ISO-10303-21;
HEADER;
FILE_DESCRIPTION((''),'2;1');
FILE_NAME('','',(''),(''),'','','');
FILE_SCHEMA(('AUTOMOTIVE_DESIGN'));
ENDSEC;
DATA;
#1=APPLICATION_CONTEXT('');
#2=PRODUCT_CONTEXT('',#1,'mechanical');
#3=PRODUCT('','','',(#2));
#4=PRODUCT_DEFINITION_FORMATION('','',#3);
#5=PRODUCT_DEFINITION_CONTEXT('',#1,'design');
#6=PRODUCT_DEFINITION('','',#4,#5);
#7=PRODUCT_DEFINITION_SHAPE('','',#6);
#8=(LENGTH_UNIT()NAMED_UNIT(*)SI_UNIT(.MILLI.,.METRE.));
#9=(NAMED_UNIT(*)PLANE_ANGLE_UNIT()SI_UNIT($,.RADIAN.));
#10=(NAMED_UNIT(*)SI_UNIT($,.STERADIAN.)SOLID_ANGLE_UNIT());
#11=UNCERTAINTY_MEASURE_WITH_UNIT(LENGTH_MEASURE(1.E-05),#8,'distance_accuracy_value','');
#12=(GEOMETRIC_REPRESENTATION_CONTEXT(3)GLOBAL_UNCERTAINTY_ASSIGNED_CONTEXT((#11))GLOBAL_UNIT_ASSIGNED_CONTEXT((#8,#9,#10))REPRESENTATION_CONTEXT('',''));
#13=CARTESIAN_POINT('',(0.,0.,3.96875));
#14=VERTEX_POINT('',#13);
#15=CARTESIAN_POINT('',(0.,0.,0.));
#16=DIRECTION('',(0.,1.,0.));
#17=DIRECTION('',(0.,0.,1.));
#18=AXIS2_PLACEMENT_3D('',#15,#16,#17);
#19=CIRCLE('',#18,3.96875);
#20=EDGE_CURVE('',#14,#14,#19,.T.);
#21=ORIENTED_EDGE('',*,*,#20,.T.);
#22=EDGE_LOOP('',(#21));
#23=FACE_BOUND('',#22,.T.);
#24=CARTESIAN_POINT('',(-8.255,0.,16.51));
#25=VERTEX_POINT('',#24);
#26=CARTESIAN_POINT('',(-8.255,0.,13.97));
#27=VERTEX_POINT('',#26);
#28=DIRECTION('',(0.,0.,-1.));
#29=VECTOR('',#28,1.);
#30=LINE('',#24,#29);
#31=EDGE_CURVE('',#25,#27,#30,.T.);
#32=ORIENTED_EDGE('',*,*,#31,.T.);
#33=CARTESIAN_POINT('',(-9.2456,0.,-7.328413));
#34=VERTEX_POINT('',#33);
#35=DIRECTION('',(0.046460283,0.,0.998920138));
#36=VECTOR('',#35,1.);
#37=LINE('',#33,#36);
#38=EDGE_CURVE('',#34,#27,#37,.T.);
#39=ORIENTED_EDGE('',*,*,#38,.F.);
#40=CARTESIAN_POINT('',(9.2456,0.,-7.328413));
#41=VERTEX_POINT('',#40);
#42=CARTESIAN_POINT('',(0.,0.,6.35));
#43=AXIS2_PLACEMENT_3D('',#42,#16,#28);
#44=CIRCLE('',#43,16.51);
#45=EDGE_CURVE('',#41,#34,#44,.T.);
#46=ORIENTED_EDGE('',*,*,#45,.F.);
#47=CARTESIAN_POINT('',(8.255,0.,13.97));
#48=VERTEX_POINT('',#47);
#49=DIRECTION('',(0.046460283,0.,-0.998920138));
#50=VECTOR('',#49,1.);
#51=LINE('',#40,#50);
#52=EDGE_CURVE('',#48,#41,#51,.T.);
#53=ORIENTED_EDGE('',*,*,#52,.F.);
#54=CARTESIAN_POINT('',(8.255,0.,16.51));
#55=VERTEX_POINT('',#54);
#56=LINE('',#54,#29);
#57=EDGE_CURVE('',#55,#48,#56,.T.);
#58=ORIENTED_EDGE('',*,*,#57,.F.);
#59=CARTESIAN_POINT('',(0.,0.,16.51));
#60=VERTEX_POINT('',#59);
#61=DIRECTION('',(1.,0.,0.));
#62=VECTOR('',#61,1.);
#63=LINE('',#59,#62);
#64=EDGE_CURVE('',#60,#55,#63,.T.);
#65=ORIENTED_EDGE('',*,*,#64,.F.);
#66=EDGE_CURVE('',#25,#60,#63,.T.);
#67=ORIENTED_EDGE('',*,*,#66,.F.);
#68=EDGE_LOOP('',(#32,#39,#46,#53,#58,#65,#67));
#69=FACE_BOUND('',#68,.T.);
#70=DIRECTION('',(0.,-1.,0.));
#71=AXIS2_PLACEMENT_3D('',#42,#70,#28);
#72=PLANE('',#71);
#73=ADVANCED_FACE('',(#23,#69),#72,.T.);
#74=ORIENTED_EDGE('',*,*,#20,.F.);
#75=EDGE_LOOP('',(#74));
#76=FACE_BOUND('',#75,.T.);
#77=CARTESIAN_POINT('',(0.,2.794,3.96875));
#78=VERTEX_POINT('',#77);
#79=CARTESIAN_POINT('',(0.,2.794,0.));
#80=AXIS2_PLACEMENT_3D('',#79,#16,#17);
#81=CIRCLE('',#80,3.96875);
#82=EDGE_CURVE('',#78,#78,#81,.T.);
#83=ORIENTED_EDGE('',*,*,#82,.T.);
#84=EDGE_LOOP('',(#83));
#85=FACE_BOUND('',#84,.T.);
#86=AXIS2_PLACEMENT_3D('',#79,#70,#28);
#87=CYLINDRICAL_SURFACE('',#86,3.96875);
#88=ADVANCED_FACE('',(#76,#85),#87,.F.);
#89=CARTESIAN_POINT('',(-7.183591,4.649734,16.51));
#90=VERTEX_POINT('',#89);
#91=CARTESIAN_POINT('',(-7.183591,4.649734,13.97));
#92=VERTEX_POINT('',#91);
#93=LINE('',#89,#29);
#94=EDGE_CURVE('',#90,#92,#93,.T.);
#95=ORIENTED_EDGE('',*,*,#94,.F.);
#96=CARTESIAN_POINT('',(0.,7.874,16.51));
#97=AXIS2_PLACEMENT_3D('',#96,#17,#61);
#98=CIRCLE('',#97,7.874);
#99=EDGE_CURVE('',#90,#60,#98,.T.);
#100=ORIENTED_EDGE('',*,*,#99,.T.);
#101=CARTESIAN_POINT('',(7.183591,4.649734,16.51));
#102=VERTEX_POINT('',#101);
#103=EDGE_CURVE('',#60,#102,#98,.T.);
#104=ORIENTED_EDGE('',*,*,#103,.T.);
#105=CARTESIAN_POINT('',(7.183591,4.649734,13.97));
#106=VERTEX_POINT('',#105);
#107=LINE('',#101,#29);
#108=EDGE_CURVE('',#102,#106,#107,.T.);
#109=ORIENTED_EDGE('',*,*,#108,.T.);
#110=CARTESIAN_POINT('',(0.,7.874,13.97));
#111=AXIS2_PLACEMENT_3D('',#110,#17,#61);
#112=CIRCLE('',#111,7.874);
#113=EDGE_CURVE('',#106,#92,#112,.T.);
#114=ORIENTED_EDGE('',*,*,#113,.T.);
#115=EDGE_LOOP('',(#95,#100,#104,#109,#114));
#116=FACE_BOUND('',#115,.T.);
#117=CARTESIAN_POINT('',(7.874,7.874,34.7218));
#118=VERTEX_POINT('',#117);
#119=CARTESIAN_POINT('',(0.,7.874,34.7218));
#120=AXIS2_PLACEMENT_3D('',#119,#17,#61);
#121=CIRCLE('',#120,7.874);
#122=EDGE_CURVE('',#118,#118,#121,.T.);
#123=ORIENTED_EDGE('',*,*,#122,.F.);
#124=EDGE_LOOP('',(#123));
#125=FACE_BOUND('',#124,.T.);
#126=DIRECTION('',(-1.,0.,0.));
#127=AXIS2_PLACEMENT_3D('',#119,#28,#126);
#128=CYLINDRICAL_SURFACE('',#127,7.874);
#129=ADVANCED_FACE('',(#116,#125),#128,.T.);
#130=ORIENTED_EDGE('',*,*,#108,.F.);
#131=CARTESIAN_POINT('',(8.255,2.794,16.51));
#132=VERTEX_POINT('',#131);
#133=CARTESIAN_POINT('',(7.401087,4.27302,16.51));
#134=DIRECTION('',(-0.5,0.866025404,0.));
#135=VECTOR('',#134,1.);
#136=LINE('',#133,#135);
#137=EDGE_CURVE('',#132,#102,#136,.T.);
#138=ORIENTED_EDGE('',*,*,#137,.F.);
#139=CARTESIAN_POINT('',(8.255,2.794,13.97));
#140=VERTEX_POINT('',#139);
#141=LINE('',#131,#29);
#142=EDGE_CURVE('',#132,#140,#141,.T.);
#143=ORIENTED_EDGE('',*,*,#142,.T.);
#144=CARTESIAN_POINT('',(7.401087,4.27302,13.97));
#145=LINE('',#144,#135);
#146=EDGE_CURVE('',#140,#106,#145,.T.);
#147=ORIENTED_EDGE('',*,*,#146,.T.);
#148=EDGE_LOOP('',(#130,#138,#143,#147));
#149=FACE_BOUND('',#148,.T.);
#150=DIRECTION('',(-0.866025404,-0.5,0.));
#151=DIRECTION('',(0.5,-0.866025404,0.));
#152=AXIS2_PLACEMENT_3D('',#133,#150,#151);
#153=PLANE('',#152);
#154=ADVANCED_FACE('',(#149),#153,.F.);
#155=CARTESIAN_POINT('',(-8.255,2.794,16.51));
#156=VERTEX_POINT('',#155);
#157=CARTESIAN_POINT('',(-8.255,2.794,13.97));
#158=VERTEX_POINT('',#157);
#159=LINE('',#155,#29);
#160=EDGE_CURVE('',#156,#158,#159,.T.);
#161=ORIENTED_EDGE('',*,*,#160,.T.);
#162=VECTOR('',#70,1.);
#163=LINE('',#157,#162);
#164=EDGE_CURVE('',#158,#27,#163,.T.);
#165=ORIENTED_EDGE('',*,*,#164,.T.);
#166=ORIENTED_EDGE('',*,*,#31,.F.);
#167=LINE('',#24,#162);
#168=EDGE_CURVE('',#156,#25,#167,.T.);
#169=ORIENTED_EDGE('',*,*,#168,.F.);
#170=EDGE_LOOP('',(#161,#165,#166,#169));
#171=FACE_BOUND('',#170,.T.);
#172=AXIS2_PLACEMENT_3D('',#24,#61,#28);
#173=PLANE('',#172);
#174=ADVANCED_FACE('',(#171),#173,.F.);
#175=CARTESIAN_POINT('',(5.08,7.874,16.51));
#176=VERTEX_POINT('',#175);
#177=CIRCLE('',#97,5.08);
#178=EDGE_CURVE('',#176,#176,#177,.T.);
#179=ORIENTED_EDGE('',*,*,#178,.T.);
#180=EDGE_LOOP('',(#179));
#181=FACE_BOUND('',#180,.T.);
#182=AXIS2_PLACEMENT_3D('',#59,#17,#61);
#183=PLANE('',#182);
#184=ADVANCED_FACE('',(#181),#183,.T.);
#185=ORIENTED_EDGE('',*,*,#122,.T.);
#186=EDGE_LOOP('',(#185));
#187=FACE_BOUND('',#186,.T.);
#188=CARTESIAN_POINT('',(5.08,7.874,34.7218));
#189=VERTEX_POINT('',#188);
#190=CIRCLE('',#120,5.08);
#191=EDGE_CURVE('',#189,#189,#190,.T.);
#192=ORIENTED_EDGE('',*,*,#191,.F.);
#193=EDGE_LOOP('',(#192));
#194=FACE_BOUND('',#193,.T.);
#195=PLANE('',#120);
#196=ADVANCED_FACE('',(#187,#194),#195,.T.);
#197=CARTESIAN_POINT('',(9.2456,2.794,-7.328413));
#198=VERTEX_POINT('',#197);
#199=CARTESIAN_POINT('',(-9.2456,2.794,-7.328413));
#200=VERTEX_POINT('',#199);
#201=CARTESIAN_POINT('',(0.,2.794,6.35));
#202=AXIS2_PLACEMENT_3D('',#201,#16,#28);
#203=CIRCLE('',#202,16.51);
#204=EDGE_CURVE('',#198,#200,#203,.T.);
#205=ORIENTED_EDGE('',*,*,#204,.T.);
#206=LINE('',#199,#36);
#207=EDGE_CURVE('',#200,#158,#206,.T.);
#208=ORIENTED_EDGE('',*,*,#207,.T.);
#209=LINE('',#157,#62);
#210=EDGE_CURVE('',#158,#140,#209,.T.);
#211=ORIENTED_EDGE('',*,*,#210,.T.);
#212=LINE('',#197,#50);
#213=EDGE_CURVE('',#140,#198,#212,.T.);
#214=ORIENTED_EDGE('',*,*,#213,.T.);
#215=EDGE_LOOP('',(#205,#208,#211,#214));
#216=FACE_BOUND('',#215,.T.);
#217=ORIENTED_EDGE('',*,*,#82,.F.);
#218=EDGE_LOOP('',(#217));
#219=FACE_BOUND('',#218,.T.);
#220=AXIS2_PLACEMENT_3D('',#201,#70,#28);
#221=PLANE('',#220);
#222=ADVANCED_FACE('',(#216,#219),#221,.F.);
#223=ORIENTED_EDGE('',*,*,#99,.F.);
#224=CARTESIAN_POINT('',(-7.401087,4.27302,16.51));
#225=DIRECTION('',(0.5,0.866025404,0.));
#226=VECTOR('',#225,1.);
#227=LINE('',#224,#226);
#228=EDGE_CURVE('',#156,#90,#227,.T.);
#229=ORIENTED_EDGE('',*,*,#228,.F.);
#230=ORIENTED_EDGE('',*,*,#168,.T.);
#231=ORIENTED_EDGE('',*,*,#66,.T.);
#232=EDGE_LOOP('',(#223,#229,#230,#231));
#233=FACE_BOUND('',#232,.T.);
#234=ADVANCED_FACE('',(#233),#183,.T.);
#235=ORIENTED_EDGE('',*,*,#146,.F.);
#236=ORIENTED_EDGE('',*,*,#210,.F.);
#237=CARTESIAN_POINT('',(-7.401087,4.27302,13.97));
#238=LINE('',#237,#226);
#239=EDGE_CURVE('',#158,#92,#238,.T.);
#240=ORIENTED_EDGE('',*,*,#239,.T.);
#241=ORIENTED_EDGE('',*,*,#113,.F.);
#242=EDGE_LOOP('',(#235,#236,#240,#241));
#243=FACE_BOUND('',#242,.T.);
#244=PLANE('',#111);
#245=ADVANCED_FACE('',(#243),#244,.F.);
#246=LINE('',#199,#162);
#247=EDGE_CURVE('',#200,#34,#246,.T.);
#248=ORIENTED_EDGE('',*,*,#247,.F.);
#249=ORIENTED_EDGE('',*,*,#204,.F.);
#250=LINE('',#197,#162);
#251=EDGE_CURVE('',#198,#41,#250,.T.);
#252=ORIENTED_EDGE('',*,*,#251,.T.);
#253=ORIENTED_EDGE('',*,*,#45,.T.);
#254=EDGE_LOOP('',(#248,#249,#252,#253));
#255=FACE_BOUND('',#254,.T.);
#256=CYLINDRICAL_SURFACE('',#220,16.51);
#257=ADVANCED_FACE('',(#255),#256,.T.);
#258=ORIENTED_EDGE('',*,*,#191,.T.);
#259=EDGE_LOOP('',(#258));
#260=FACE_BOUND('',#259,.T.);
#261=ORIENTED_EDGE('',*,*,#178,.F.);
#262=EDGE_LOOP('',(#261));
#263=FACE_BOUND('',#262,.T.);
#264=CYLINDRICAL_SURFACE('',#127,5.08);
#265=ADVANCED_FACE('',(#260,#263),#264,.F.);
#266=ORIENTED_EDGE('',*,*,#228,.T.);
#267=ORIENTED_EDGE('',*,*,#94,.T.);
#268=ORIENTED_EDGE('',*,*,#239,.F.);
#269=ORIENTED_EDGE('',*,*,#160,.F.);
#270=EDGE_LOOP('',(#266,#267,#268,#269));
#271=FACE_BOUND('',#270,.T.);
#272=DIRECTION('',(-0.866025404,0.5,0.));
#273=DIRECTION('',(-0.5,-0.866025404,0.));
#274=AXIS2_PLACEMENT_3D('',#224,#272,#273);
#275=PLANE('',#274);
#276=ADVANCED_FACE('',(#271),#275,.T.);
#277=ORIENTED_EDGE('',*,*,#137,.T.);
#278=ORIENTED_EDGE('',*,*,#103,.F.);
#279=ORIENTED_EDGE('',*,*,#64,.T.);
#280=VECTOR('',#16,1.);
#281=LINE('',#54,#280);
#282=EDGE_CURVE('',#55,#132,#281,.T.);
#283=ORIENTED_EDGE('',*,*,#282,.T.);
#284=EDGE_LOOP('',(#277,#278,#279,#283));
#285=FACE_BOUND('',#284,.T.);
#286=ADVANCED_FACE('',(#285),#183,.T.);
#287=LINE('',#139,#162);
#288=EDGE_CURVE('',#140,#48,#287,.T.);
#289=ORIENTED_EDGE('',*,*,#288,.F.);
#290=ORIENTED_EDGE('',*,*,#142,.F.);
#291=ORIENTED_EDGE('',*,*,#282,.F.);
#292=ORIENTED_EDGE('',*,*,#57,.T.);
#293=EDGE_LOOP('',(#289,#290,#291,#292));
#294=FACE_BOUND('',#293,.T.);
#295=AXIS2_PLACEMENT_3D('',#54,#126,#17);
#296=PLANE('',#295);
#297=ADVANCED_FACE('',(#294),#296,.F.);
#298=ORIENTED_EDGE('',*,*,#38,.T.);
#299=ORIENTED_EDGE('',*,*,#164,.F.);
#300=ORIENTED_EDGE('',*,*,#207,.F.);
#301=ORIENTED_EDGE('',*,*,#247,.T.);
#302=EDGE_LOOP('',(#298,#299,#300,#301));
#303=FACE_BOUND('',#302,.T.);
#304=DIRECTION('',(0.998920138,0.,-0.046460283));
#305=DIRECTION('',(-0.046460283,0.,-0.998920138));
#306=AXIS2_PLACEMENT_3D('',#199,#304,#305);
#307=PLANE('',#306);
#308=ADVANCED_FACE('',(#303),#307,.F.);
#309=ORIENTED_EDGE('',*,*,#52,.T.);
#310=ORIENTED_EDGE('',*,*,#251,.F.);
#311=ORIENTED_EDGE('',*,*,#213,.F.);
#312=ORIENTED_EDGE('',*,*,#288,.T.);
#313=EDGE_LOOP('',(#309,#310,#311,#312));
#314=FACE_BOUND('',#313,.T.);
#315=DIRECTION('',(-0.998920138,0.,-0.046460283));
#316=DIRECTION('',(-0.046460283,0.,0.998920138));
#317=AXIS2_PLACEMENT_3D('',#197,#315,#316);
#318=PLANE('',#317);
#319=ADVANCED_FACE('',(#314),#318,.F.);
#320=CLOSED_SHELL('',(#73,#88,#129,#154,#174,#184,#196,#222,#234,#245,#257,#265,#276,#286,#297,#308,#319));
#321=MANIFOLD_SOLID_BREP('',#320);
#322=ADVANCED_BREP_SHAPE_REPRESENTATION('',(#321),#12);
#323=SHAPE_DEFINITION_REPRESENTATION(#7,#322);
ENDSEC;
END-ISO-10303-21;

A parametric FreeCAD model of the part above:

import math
import FreeCAD as App
import Part
import Sketcher
from FreeCAD import Vector
Q = App.Units.Quantity

doc = App.newDocument("Part")
params = doc.addObject("Spreadsheet::Sheet", "Params")
for row, (alias, value) in enumerate([
    ("sketch1_radius", "0.65 in"),
    ("sketch1_diameter", "0.3125 in"),
    ("sketch1_width", "0.65 in"),
    ("pad1_length", "0.11 in"),
    ("sketch2_diameter", "0.4 in"),
    ("sketch2_diameter2", "0.62 in"),
    ("pad2_length", "0.817 in"),
    ("sketch3_radius", "0.31 in"),
    ("sketch3_width", "0.65 in"),
    ("sketch3_height", "0.11 in"),
    ("pad3_length", "0.1 in"),
], start=1):
    params.set(f"A{row}", alias)
    params.set(f"B{row}", "=" + value)
    params.setAlias(f"B{row}", alias)

body = doc.addObject("PartDesign::Body", "Body")

sketch1 = doc.addObject("Sketcher::SketchObject", "Sketch")
body.addObject(sketch1)
sketch1.AttachmentSupport = (doc.XZ_Plane, [""])
sketch1.MapMode = "FlatFace"
sketch1.addGeometry([
    Part.LineSegment(Vector(-9.2, -7.3, 0), Vector(-8.3, 14, 0)),
    Part.LineSegment(Vector(-8.3, 14, 0), Vector(8.3, 14, 0)),
    Part.LineSegment(Vector(8.3, 14, 0), Vector(9.2, -7.3, 0)),
    Part.ArcOfCircle(Part.Circle(Vector(0, 6.3, 0), Vector(0, 0, 1), 16.5), math.radians(-124), math.radians(-56)),
    Part.Circle(Vector(0, 0, 0), Vector(0, 0, 1), 4),
], False)
sketch1.addConstraint([
    Sketcher.Constraint("Coincident", 0, 2, 1, 1),
    Sketcher.Constraint("Coincident", 1, 2, 2, 1),
    Sketcher.Constraint("Coincident", 2, 2, 3, 2),
    Sketcher.Constraint("Coincident", 3, 1, 0, 1),
    Sketcher.Constraint("Horizontal", 1),
    Sketcher.Constraint("Coincident", 4, 3, -1, 1),
    Sketcher.Constraint("Symmetric", 2, 2, 3, 1, -2),
    Sketcher.Constraint("Equal", 0, 2),
    Sketcher.Constraint("Radius", 3, Q("0.65 in")),
    Sketcher.Constraint("Diameter", 4, Q("0.3125 in")),
    Sketcher.Constraint("DistanceX", 1, 1, 1, 2, Q("0.65 in")),
    Sketcher.Constraint("DistanceY", 3, 3, 0, 2, Q("0.3 in")),
    Sketcher.Constraint("DistanceY", -1, 1, 3, 3, Q("0.25 in")),
    Sketcher.Constraint("DistanceX", -1, 1, 2, 2, Q("0.364 in")),
])
sketch1.setExpression("Constraints[8]", "Params.sketch1_radius")
sketch1.setExpression("Constraints[9]", "Params.sketch1_diameter")
sketch1.setExpression("Constraints[10]", "Params.sketch1_width")
pad1 = doc.addObject("PartDesign::Pad", "Pad")
body.addObject(pad1)
pad1.Profile = sketch1
pad1.setExpression("Length", "Params.pad1_length")
pad1.Reversed = True

sketch2 = doc.addObject("Sketcher::SketchObject", "Sketch001")
body.addObject(sketch2)
sketch2.AttachmentSupport = (doc.XY_Plane, [""])
sketch2.MapMode = "FlatFace"
sketch2.AttachmentOffset = App.Placement(Vector(0, 0, 0.55 * 25.4), App.Rotation())
sketch2.addGeometry([
    Part.Circle(Vector(0, 8, 0), Vector(0, 0, 1), 8),
    Part.Circle(Vector(0, 8, 0), Vector(0, 0, 1), 5),
], False)
sketch2.addConstraint([
    Sketcher.Constraint("Coincident", 1, 3, 0, 3),
    Sketcher.Constraint("PointOnObject", 0, 3, -2),
    Sketcher.Constraint("Diameter", 1, Q("0.4 in")),
    Sketcher.Constraint("Diameter", 0, Q("0.62 in")),
    Sketcher.Constraint("DistanceY", -1, 1, 0, 3, Q("0.31 in")),
])
sketch2.setExpression("Constraints[2]", "Params.sketch2_diameter")
sketch2.setExpression("Constraints[3]", "Params.sketch2_diameter2")
pad2 = doc.addObject("PartDesign::Pad", "Pad001")
body.addObject(pad2)
pad2.Profile = sketch2
pad2.setExpression("Length", "Params.pad2_length")

sketch3 = doc.addObject("Sketcher::SketchObject", "Sketch002")
body.addObject(sketch3)
sketch3.AttachmentSupport = (doc.XY_Plane, [""])
sketch3.MapMode = "FlatFace"
sketch3.AttachmentOffset = App.Placement(Vector(0, 0, 0.55 * 25.4), App.Rotation())
sketch3.addGeometry([
    Part.LineSegment(Vector(8.3, 2.8, 0), Vector(7.2, 4.6, 0)),
    Part.ArcOfCircle(Part.Circle(Vector(0, 7.9, 0), Vector(0, 0, 1), 7.9), math.radians(-24), math.radians(204)),
    Part.LineSegment(Vector(-7.2, 4.6, 0), Vector(-8.3, 2.8, 0)),
    Part.LineSegment(Vector(-8.3, 2.8, 0), Vector(-8.3, 0, 0)),
    Part.LineSegment(Vector(-8.3, 0, 0), Vector(8.3, 0, 0)),
    Part.LineSegment(Vector(8.3, 0, 0), Vector(8.3, 2.8, 0)),
], False)
sketch3.addConstraint([
    Sketcher.Constraint("Coincident", 0, 2, 1, 1),
    Sketcher.Constraint("Coincident", 1, 2, 2, 1),
    Sketcher.Constraint("Coincident", 2, 2, 3, 1),
    Sketcher.Constraint("Coincident", 3, 2, 4, 1),
    Sketcher.Constraint("Coincident", 4, 2, 5, 1),
    Sketcher.Constraint("Coincident", 5, 2, 0, 1),
    Sketcher.Constraint("Vertical", 3),
    Sketcher.Constraint("Horizontal", 4),
    Sketcher.Constraint("Vertical", 5),
    Sketcher.Constraint("Symmetric", 3, 2, 4, 2, -1, 1),
    Sketcher.Constraint("Symmetric", 0, 2, 1, 2, -2),
    Sketcher.Constraint("Horizontal", 2, 2, 5, 2),
    Sketcher.Constraint("Radius", 1, Q("0.31 in")),
    Sketcher.Constraint("Angle", 0, Q("120 deg")),
    Sketcher.Constraint("DistanceX", 4, 1, 4, 2, Q("0.65 in")),
    Sketcher.Constraint("DistanceY", 3, 2, 3, 1, Q("0.11 in")),
    Sketcher.Constraint("DistanceY", 2, 2, 1, 3, Q("0.2 in")),
])
sketch3.setExpression("Constraints[12]", "Params.sketch3_radius")
sketch3.setExpression("Constraints[14]", "Params.sketch3_width")
sketch3.setExpression("Constraints[15]", "Params.sketch3_height")
pad3 = doc.addObject("PartDesign::Pad", "Pad002")
body.addObject(pad3)
pad3.Profile = sketch3
pad3.setExpression("Length", "Params.pad3_length")

doc.recompute()
